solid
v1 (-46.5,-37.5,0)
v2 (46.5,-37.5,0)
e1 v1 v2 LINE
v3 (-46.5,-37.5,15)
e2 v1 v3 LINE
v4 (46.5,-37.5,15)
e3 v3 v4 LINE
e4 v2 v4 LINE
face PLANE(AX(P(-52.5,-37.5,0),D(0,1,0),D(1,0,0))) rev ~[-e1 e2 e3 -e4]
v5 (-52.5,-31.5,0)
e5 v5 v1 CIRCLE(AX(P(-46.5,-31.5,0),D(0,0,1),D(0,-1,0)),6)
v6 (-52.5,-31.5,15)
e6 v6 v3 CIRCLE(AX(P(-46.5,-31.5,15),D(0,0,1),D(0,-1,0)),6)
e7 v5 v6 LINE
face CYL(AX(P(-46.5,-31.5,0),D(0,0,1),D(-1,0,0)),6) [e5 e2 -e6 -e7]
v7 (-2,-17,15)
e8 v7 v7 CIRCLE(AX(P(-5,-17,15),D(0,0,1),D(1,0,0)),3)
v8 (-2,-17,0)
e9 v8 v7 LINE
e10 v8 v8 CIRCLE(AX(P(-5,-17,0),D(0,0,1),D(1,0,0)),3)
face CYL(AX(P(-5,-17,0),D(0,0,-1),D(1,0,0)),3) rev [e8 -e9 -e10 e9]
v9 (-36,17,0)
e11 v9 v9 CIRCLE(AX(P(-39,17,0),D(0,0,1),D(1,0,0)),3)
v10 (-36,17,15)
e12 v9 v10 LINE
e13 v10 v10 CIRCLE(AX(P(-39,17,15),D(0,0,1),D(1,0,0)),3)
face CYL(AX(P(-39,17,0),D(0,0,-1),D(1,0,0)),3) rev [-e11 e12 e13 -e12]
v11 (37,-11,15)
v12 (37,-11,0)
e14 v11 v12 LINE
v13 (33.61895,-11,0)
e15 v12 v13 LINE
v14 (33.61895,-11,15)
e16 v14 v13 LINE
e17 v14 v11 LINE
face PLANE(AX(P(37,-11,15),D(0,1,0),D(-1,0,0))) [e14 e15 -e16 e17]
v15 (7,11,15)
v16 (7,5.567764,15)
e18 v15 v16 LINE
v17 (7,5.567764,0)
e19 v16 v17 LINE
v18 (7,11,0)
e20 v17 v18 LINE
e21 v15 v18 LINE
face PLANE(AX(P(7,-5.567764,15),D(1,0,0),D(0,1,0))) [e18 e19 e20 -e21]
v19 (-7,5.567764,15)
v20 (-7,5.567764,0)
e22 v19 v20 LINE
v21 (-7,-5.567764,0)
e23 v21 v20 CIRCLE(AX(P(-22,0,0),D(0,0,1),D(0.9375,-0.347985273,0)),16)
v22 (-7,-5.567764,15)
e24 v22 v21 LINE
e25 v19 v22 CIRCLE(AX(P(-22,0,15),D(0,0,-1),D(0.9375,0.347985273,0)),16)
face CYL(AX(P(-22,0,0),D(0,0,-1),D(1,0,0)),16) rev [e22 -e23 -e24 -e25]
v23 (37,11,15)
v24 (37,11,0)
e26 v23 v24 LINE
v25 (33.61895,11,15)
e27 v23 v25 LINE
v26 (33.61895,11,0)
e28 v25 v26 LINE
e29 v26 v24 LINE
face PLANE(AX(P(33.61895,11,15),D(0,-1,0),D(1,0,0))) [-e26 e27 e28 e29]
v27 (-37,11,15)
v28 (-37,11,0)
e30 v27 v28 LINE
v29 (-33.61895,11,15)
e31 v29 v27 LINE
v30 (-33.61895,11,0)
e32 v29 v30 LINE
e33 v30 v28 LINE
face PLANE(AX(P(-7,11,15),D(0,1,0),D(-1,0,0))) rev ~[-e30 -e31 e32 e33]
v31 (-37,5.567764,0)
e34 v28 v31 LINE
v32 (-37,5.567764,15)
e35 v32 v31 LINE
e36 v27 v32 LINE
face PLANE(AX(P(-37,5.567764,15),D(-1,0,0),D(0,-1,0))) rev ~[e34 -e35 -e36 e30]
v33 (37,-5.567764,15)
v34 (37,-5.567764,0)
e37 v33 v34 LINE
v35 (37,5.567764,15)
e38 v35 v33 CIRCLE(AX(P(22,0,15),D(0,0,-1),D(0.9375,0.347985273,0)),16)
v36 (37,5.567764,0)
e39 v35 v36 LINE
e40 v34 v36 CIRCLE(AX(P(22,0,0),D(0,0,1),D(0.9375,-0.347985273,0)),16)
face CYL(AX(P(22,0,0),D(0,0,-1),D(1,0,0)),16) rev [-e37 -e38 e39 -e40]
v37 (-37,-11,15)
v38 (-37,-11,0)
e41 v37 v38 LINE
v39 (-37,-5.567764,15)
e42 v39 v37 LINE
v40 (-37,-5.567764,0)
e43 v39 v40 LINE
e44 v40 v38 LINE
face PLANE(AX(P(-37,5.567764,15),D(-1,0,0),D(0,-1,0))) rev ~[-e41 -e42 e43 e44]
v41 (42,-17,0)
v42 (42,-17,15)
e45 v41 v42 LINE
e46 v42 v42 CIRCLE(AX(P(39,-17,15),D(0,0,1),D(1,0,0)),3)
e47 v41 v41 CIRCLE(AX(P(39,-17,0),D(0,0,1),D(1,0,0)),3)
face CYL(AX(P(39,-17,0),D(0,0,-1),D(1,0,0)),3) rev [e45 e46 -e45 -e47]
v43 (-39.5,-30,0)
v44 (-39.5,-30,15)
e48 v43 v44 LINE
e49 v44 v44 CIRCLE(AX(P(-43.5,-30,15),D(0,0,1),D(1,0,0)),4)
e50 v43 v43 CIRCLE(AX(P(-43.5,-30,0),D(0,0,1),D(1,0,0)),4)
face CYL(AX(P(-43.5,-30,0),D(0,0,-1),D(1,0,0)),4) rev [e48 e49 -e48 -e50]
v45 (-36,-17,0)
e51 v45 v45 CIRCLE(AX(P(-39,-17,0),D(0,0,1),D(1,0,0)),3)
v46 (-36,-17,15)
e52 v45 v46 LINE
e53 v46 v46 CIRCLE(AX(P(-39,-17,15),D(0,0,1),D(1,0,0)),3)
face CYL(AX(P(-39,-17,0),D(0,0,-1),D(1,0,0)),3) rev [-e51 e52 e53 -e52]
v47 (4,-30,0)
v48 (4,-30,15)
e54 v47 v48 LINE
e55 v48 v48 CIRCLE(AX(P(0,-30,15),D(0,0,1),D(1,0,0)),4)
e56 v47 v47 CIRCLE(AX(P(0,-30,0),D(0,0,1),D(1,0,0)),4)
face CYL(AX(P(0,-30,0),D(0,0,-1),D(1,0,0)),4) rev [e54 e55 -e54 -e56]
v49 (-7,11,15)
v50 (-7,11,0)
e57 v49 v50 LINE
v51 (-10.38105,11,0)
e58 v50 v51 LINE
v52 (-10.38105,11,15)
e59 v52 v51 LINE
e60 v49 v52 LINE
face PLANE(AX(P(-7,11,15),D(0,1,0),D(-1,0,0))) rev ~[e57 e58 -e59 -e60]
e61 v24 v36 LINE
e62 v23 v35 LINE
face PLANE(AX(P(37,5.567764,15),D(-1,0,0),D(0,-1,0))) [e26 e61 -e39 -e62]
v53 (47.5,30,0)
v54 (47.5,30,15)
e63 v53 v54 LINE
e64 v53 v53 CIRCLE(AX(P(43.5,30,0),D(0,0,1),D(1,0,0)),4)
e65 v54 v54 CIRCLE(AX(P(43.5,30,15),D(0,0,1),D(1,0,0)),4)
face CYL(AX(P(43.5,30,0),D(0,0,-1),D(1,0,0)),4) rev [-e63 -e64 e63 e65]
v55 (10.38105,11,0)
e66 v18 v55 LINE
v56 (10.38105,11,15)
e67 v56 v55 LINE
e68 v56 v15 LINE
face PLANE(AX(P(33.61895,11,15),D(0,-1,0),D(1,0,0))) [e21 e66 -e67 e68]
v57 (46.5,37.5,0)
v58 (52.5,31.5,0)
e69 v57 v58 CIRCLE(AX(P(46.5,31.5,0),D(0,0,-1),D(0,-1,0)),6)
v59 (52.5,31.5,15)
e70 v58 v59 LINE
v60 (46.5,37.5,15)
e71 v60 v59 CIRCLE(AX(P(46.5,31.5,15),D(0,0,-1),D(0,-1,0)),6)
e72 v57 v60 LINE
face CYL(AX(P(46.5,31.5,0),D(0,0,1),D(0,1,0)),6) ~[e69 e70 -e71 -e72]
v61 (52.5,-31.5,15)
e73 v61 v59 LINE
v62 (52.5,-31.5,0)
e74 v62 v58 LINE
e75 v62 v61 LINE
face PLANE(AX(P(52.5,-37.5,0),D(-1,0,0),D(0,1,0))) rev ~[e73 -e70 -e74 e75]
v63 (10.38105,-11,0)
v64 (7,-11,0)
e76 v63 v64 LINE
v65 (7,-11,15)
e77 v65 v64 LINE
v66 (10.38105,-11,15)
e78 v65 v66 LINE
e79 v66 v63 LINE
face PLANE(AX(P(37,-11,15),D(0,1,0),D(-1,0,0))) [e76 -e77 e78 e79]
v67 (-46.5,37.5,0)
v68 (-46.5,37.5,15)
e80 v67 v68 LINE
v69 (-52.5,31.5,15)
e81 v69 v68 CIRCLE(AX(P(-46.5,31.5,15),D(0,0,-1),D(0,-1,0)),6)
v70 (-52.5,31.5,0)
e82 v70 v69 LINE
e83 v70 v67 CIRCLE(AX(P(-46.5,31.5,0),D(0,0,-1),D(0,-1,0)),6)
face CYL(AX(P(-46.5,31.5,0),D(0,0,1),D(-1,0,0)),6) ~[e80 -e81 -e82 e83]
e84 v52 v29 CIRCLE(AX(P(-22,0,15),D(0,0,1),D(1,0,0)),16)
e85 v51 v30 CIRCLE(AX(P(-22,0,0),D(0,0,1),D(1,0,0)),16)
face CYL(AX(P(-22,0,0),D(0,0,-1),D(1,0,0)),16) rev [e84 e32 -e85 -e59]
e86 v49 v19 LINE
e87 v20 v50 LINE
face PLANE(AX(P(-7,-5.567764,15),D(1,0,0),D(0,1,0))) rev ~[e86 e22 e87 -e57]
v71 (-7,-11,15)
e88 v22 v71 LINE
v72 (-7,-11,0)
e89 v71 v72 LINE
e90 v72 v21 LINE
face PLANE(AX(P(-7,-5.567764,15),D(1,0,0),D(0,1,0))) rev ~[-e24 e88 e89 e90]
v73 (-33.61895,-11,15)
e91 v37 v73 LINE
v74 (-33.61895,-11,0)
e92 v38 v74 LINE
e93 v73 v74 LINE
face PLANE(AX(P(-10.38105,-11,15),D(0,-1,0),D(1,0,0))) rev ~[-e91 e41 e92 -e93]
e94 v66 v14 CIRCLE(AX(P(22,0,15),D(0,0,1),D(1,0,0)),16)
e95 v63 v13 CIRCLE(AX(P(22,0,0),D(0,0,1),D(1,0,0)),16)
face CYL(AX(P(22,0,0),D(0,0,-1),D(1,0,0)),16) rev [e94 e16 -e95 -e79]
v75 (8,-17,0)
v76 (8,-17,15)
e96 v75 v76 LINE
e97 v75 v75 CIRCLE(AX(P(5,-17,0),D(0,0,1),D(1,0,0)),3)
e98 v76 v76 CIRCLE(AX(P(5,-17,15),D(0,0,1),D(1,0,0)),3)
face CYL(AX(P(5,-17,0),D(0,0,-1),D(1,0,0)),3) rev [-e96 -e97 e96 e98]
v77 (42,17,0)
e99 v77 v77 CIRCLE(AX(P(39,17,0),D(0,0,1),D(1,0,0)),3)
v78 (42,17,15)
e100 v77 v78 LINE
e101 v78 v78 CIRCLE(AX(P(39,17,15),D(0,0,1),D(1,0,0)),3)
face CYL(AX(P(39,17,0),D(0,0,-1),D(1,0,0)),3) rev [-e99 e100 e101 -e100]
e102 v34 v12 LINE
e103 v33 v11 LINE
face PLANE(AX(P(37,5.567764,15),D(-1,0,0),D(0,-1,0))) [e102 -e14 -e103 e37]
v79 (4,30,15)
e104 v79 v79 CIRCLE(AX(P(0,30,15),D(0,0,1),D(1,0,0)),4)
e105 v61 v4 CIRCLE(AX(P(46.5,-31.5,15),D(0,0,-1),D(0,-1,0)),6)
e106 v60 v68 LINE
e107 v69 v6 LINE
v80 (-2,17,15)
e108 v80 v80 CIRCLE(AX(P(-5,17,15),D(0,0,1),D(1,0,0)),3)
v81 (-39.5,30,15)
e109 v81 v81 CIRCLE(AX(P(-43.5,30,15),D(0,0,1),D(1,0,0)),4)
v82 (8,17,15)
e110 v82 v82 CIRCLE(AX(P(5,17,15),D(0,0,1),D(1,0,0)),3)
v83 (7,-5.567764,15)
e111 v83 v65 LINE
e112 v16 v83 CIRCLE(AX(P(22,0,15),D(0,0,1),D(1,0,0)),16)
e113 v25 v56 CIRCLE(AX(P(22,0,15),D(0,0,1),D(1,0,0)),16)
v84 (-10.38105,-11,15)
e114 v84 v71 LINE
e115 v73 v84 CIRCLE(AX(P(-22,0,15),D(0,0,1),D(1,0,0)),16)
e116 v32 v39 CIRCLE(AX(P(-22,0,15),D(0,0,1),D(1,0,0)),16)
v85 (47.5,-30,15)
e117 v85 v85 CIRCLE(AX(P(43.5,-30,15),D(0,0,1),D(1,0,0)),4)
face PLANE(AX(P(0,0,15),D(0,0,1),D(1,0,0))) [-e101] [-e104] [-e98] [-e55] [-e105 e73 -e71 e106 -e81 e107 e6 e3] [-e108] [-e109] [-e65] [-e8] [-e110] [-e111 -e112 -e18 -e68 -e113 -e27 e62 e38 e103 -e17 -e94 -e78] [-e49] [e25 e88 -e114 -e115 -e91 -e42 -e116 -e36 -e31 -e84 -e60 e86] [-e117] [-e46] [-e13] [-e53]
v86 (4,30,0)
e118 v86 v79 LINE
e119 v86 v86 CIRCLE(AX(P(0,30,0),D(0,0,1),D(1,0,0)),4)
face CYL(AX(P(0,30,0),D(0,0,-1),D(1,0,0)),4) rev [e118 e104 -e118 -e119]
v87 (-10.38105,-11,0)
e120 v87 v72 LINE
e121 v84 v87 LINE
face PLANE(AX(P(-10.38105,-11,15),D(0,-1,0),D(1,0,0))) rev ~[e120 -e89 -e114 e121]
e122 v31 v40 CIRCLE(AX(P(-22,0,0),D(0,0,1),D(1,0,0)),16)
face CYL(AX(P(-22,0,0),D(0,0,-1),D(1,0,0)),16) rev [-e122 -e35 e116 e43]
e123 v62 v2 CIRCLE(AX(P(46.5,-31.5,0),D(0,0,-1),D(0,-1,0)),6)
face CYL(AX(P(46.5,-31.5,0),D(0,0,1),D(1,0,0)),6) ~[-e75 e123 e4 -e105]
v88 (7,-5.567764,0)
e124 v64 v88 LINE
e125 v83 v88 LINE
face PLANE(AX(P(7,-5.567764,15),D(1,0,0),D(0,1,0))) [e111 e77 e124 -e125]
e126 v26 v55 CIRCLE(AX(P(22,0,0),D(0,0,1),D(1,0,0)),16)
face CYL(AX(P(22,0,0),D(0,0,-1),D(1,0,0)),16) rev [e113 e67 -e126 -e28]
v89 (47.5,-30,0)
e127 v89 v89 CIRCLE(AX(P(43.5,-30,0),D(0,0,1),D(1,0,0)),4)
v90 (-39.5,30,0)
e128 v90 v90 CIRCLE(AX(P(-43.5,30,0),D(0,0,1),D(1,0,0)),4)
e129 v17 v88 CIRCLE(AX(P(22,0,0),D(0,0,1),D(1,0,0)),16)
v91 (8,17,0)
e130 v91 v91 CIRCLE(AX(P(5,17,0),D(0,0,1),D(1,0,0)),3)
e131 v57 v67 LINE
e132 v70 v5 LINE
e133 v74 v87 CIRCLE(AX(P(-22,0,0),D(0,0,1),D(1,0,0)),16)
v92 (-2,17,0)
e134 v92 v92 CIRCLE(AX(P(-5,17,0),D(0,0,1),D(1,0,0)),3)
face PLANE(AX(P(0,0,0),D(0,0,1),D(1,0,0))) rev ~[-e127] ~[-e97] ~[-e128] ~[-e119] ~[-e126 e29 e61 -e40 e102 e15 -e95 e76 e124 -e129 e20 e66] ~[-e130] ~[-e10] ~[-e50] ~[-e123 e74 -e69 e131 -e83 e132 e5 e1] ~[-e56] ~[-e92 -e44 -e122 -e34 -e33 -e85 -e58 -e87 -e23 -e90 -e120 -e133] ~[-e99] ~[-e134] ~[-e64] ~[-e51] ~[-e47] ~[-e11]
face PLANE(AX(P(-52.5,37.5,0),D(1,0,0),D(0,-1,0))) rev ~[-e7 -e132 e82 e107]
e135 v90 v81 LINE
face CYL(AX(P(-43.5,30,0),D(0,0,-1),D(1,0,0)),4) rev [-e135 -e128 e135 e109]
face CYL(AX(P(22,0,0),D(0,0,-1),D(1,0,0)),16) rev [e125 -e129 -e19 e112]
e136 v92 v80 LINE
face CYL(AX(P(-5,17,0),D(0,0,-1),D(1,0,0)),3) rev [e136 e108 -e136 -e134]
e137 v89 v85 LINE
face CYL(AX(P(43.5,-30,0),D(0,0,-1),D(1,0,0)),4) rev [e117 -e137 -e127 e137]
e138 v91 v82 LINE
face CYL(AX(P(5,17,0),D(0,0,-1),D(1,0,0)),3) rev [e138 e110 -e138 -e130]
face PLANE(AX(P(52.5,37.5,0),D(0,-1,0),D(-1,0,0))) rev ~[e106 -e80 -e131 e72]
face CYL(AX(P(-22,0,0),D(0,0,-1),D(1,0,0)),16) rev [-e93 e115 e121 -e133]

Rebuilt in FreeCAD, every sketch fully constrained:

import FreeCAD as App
import Part
import Sketcher


def edges_at(feature, points):
    """Names of the edges that pass closest to the given points."""
    edges = feature.Shape.Edges
    near = lambda p: min(range(len(edges)), key=lambda i: edges[i].distToShape(Part.Vertex(*p))[0])
    return sorted({f"Edge{near(p) + 1}" for p in points})


def add_polygon(sketch, points):
    """Adds a closed chain of lines whose ends are joined by coincident constraints."""
    first, n = sketch.GeometryCount, len(points)
    for a, b in zip(points, points[1:] + points[:1]):
        sketch.addGeometry(Part.LineSegment(App.Vector(*a, 0), App.Vector(*b, 0)), False)
    for i in range(n):
        sketch.addConstraint(Sketcher.Constraint("Coincident", first + i, 2, first + (i + 1) % n, 1))

doc = App.newDocument("Part")
body = doc.addObject("PartDesign::Body", "Body")

# Sketch on XY plane
sketch1 = body.newObject("Sketcher::SketchObject", "Sketch")
sketch1.AttachmentSupport = (doc.getObject("XY_Plane"), [""])
sketch1.MapMode = "FlatFace"
add_polygon(sketch1, [(-52.5, 37.5), (-52.5, -37.5), (52.5, -37.5), (52.5, 37.5)])  # lines 0-3
sketch1.addGeometry(Part.Circle(App.Vector(-43.5, -30, 0), App.Vector(0, 0, 1), 4), False)  # 4
sketch1.addGeometry(Part.Circle(App.Vector(-39, -17, 0), App.Vector(0, 0, 1), 3), False)  # 5
sketch1.addGeometry(Part.Circle(App.Vector(-5, -17, 0), App.Vector(0, 0, 1), 3), False)  # 6
sketch1.addGeometry(Part.Circle(App.Vector(0, -30, 0), App.Vector(0, 0, 1), 4), False)  # 7
sketch1.addGeometry(Part.Circle(App.Vector(43.5, -30, 0), App.Vector(0, 0, 1), 4), False)  # 8
sketch1.addGeometry(Part.Circle(App.Vector(5, -17, 0), App.Vector(0, 0, 1), 3), False)  # 9
sketch1.addGeometry(Part.Circle(App.Vector(39, -17, 0), App.Vector(0, 0, 1), 3), False)  # 10
sketch1.addGeometry(Part.Circle(App.Vector(-39, 17, 0), App.Vector(0, 0, 1), 3), False)  # 11
sketch1.addGeometry(Part.Circle(App.Vector(-22, 0, 0), App.Vector(0, 0, 1), 16), False)  # 12
sketch1.addGeometry(Part.Circle(App.Vector(-5, 17, 0), App.Vector(0, 0, 1), 3), False)  # 13
sketch1.addGeometry(Part.Circle(App.Vector(-43.5, 30, 0), App.Vector(0, 0, 1), 4), False)  # 14
sketch1.addGeometry(Part.Circle(App.Vector(22, 0, 0), App.Vector(0, 0, 1), 16), False)  # 15
sketch1.addGeometry(Part.Circle(App.Vector(5, 17, 0), App.Vector(0, 0, 1), 3), False)  # 16
sketch1.addGeometry(Part.Circle(App.Vector(39, 17, 0), App.Vector(0, 0, 1), 3), False)  # 17
sketch1.addGeometry(Part.Circle(App.Vector(0, 30, 0), App.Vector(0, 0, 1), 4), False)  # 18
sketch1.addGeometry(Part.Circle(App.Vector(43.5, 30, 0), App.Vector(0, 0, 1), 4), False)  # 19
sketch1.addConstraint(Sketcher.Constraint("Vertical", 0))
sketch1.addConstraint(Sketcher.Constraint("Horizontal", 1))
sketch1.addConstraint(Sketcher.Constraint("Vertical", 2))
sketch1.addConstraint(Sketcher.Constraint("Horizontal", 3))
sketch1.addConstraint(Sketcher.Constraint("Equal", 5, 6))
sketch1.addConstraint(Sketcher.Constraint("Equal", 4, 7))
sketch1.addConstraint(Sketcher.Constraint("Equal", 7, 8))
sketch1.addConstraint(Sketcher.Constraint("Equal", 6, 9))
sketch1.addConstraint(Sketcher.Constraint("Equal", 9, 10))
sketch1.addConstraint(Sketcher.Constraint("Equal", 10, 11))
sketch1.addConstraint(Sketcher.Constraint("Equal", 11, 13))
sketch1.addConstraint(Sketcher.Constraint("Equal", 8, 14))
sketch1.addConstraint(Sketcher.Constraint("Equal", 12, 15))
sketch1.addConstraint(Sketcher.Constraint("Equal", 13, 16))
sketch1.addConstraint(Sketcher.Constraint("Equal", 16, 17))
sketch1.addConstraint(Sketcher.Constraint("Equal", 14, 18))
sketch1.addConstraint(Sketcher.Constraint("Equal", 18, 19))
sketch1.addConstraint(Sketcher.Constraint("Symmetric", 10, 3, 11, 3, -1, 1))
sketch1.addConstraint(Sketcher.Constraint("Symmetric", 9, 3, 13, 3, -1, 1))
sketch1.addConstraint(Sketcher.Constraint("Symmetric", 8, 3, 14, 3, -1, 1))
sketch1.addConstraint(Sketcher.Constraint("Symmetric", 12, 3, 15, 3, -1, 1))
sketch1.addConstraint(Sketcher.Constraint("Symmetric", 6, 3, 16, 3, -1, 1))
sketch1.addConstraint(Sketcher.Constraint("Symmetric", 5, 3, 17, 3, -1, 1))
sketch1.addConstraint(Sketcher.Constraint("Symmetric", 7, 3, 18, 3, -1, 1))
sketch1.addConstraint(Sketcher.Constraint("Symmetric", 4, 3, 19, 3, -1, 1))
sketch1.addConstraint(Sketcher.Constraint("Symmetric", 0, 2, 2, 2, -1, 1))
sketch1.addConstraint(Sketcher.Constraint("Symmetric", 4, 3, 8, 3, -2))
sketch1.addConstraint(Sketcher.Constraint("Symmetric", 6, 3, 9, 3, -2))
sketch1.addConstraint(Sketcher.Constraint("Symmetric", 5, 3, 10, 3, -2))
sketch1.addConstraint(Sketcher.Constraint("PointOnObject", 7, 3, -2))
sketch1.addConstraint(Sketcher.Constraint("PointOnObject", 12, 3, -1))
sketch1.addConstraint(Sketcher.Constraint("Horizontal", 5, 3, 6, 3))
sketch1.addConstraint(Sketcher.Constraint("Horizontal", 4, 3, 7, 3))
sketch1.addConstraint(Sketcher.Constraint("Diameter", 4, 8.0))
sketch1.addConstraint(Sketcher.Constraint("Diameter", 5, 6.0))
sketch1.addConstraint(Sketcher.Constraint("Diameter", 12, 32.0))
sketch1.addConstraint(Sketcher.Constraint("DistanceX", 1, 1, 1, 2, 105.0))
sketch1.addConstraint(Sketcher.Constraint("DistanceY", 0, 2, 0, 1, 75.0))
sketch1.addConstraint(Sketcher.Constraint("DistanceX", 5, 3, 6, 3, 34.0))
sketch1.addConstraint(Sketcher.Constraint("DistanceX", 4, 3, 8, 3, 87.0))
sketch1.addConstraint(Sketcher.Constraint("DistanceX", 5, 3, 9, 3, 44.0))
sketch1.addConstraint(Sketcher.Constraint("DistanceY", 5, 3, 11, 3, 34.0))
sketch1.addConstraint(Sketcher.Constraint("DistanceY", 4, 3, 14, 3, 60.0))
sketch1.addConstraint(Sketcher.Constraint("DistanceX", 12, 3, -1, 1, 22.0))
pad1 = body.newObject("PartDesign::Pad", "Pad")
pad1.Profile = sketch1
pad1.Length = 15
doc.recompute()

fillet = body.newObject("PartDesign::Fillet", "Fillet")
fillet.Base = (pad1, edges_at(pad1, [
    (-52.5, 37.5, 7.5),
    (52.5, 37.5, 7.5),
    (52.5, -37.5, 7.5),
    (-52.5, -37.5, 7.5),
]))
fillet.Radius = 6

# Sketch on XY plane
sketch2 = body.newObject("Sketcher::SketchObject", "Sketch001")
sketch2.AttachmentSupport = (doc.getObject("XY_Plane"), [""])
sketch2.MapMode = "FlatFace"
sketch2.AttachmentOffset = App.Placement(App.Vector(0, 0, 15), App.Rotation())
add_polygon(sketch2, [(37, 11), (7, 11), (7, -11), (37, -11)])  # lines 0-3
add_polygon(sketch2, [(-7, 11), (-37, 11), (-37, -11), (-7, -11)])  # lines 4-7
sketch2.addConstraint(Sketcher.Constraint("Horizontal", 0))
sketch2.addConstraint(Sketcher.Constraint("Vertical", 1))
sketch2.addConstraint(Sketcher.Constraint("Horizontal", 2))
sketch2.addConstraint(Sketcher.Constraint("Vertical", 3))
sketch2.addConstraint(Sketcher.Constraint("Horizontal", 4))
sketch2.addConstraint(Sketcher.Constraint("Vertical", 5))
sketch2.addConstraint(Sketcher.Constraint("Horizontal", 6))
sketch2.addConstraint(Sketcher.Constraint("Vertical", 7))
sketch2.addConstraint(Sketcher.Constraint("Symmetric", 2, 2, 4, 2, -1, 1))
sketch2.addConstraint(Sketcher.Constraint("Symmetric", 0, 2, 6, 2, -1, 1))
sketch2.addConstraint(Sketcher.Constraint("Horizontal", 3, 2, 4, 2))
sketch2.addConstraint(Sketcher.Constraint("DistanceX", 0, 2, 0, 1, 30.0))
sketch2.addConstraint(Sketcher.Constraint("DistanceY", 1, 2, 1, 1, 22.0))
sketch2.addConstraint(Sketcher.Constraint("DistanceX", -1, 1, 0, 2, 7.0))
pocket1 = body.newObject("PartDesign::Pocket", "Pocket")
pocket1.Profile = sketch2
pocket1.Type = "ThroughAll"

doc.recompute()
